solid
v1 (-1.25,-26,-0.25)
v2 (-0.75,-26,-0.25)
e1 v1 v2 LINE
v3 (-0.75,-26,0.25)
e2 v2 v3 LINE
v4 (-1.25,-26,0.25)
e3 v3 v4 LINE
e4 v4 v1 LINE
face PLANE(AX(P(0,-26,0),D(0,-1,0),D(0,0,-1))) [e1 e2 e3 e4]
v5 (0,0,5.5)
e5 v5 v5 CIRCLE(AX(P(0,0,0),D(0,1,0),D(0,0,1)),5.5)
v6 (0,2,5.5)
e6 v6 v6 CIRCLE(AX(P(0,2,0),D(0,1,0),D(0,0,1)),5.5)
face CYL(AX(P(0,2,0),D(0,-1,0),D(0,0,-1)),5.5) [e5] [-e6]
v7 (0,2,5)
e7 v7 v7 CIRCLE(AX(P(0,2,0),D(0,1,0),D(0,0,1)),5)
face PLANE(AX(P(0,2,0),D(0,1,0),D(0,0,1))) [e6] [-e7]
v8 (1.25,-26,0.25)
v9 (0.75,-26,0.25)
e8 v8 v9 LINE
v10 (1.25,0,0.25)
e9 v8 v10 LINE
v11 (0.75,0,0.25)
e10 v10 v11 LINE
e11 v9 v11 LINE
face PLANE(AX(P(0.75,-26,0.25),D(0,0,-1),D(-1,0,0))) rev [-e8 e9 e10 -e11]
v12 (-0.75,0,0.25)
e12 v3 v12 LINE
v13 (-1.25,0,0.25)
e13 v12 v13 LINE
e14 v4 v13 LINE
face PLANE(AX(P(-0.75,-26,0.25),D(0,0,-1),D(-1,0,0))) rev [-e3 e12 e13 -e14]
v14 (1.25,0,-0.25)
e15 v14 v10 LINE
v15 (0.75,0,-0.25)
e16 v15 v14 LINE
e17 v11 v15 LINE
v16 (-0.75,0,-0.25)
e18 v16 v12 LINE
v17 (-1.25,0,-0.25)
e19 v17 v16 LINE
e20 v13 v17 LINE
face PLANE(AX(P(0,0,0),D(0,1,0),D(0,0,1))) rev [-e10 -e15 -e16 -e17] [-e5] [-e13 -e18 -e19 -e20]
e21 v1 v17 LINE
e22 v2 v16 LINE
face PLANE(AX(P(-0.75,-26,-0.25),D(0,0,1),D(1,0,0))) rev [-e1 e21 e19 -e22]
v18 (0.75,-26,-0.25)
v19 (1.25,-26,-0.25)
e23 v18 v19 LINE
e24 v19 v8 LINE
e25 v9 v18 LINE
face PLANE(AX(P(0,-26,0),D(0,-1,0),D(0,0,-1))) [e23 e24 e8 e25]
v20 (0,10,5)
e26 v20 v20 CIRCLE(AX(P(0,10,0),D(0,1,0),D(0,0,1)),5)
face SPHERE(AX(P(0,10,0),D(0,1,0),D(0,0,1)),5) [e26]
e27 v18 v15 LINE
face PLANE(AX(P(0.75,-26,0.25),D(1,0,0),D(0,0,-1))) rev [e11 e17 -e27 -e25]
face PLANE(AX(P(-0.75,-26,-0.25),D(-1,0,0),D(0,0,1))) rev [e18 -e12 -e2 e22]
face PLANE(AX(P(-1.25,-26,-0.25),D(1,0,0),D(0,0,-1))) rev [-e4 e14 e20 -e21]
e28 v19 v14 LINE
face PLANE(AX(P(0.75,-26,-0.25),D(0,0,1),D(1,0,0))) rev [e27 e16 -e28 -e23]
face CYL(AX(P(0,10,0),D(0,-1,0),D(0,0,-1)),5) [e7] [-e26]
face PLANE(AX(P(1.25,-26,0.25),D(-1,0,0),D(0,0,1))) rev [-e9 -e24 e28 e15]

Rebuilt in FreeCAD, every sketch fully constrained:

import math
import FreeCAD as App
import Part
import Sketcher


def add_polygon(sketch, points):
    """Adds a closed chain of lines whose ends are joined by coincident constraints."""
    first, n = sketch.GeometryCount, len(points)
    for a, b in zip(points, points[1:] + points[:1]):
        sketch.addGeometry(Part.LineSegment(App.Vector(*a, 0), App.Vector(*b, 0)), False)
    for i in range(n):
        sketch.addConstraint(Sketcher.Constraint("Coincident", first + i, 2, first + (i + 1) % n, 1))

doc = App.newDocument("Part")
body = doc.addObject("PartDesign::Body", "Body")

# Sketch on XZ plane
sketch1 = body.newObject("Sketcher::SketchObject", "Sketch")
sketch1.AttachmentSupport = (doc.getObject("XZ_Plane"), [""])
sketch1.MapMode = "FlatFace"
sketch1.addGeometry(Part.Circle(App.Vector(0, 0, 0), App.Vector(0, 0, 1), 6), False)
sketch1.addConstraint([
    Sketcher.Constraint("Coincident", 0, 3, -1, 1),
    Sketcher.Constraint("Diameter", 0, 11.0),
])
pad1 = body.newObject("PartDesign::Pad", "Pad")
pad1.Profile = sketch1
pad1.Length = 2
pad1.Reversed = True

# Sketch on XZ plane
sketch2 = body.newObject("Sketcher::SketchObject", "Sketch001")
sketch2.AttachmentSupport = (doc.getObject("XZ_Plane"), [""])
sketch2.MapMode = "FlatFace"
sketch2.AttachmentOffset = App.Placement(App.Vector(0, 0, -2), App.Rotation())
sketch2.addGeometry(Part.Circle(App.Vector(0, 0, 0), App.Vector(0, 0, 1), 5), False)
sketch2.addConstraint([
    Sketcher.Constraint("Coincident", 0, 3, -1, 1),
    Sketcher.Constraint("Diameter", 0, 10.0),
])
pad2 = body.newObject("PartDesign::Pad", "Pad001")
pad2.Profile = sketch2
pad2.Length = 8
pad2.Reversed = True

# Sketch on XZ plane
sketch3 = body.newObject("Sketcher::SketchObject", "Sketch002")
sketch3.AttachmentSupport = (doc.getObject("XZ_Plane"), [""])
sketch3.MapMode = "FlatFace"
sketch3.AttachmentOffset = App.Placement(App.Vector(0, 0, -10), App.Rotation())
sketch3.addGeometry([
    Part.LineSegment(App.Vector(0, -5, 0), App.Vector(0, 5, 0)),
    Part.ArcOfCircle(Part.Circle(App.Vector(0, 0, 0), App.Vector(0, 0, 1), 5), math.radians(-90), math.radians(90)),
], False)
sketch3.addConstraint([
    Sketcher.Constraint("Coincident", 0, 1, 1, 1),
    Sketcher.Constraint("Coincident", 1, 2, 0, 2),
    Sketcher.Constraint("Vertical", 0),
    Sketcher.Constraint("Coincident", 1, 3, -1, 1),
    Sketcher.Constraint("PointOnObject", 0, 1, -2),
    Sketcher.Constraint("Radius", 1, 5.0),
])
revolution = body.newObject("PartDesign::Revolution", "Revolution")
revolution.Profile = sketch3
revolution.ReferenceAxis = (sketch3, ["V_Axis"])
revolution.Angle = 180

# Sketch on XZ plane
sketch4 = body.newObject("Sketcher::SketchObject", "Sketch003")
sketch4.AttachmentSupport = (doc.getObject("XZ_Plane"), [""])
sketch4.MapMode = "FlatFace"
add_polygon(sketch4, [(-1.2, 0.2), (-1.2, -0.2), (-0.8, -0.2), (-0.8, 0.2)])  # lines 0-3
add_polygon(sketch4, [(0.8, 0.2), (0.8, -0.2), (1.2, -0.2), (1.2, 0.2)])  # lines 4-7
sketch4.addConstraint([
    Sketcher.Constraint("Vertical", 0),
    Sketcher.Constraint("Horizontal", 1),
    Sketcher.Constraint("Vertical", 2),
    Sketcher.Constraint("Horizontal", 3),
    Sketcher.Constraint("Vertical", 4),
    Sketcher.Constraint("Horizontal", 5),
    Sketcher.Constraint("Vertical", 6),
    Sketcher.Constraint("Horizontal", 7),
    Sketcher.Constraint("Symmetric", 2, 2, 4, 2, -1, 1),
    Sketcher.Constraint("Symmetric", 0, 2, 6, 2, -1, 1),
    Sketcher.Constraint("Horizontal", 1, 2, 4, 2),
    Sketcher.Constraint("Equal", 7, 0),
    Sketcher.Constraint("DistanceX", 1, 1, 1, 2, 0.5),
    Sketcher.Constraint("DistanceX", 0, 2, 4, 2, 2.0),
])
pad3 = body.newObject("PartDesign::Pad", "Pad002")
pad3.Profile = sketch4
pad3.Length = 26

doc.recompute()
